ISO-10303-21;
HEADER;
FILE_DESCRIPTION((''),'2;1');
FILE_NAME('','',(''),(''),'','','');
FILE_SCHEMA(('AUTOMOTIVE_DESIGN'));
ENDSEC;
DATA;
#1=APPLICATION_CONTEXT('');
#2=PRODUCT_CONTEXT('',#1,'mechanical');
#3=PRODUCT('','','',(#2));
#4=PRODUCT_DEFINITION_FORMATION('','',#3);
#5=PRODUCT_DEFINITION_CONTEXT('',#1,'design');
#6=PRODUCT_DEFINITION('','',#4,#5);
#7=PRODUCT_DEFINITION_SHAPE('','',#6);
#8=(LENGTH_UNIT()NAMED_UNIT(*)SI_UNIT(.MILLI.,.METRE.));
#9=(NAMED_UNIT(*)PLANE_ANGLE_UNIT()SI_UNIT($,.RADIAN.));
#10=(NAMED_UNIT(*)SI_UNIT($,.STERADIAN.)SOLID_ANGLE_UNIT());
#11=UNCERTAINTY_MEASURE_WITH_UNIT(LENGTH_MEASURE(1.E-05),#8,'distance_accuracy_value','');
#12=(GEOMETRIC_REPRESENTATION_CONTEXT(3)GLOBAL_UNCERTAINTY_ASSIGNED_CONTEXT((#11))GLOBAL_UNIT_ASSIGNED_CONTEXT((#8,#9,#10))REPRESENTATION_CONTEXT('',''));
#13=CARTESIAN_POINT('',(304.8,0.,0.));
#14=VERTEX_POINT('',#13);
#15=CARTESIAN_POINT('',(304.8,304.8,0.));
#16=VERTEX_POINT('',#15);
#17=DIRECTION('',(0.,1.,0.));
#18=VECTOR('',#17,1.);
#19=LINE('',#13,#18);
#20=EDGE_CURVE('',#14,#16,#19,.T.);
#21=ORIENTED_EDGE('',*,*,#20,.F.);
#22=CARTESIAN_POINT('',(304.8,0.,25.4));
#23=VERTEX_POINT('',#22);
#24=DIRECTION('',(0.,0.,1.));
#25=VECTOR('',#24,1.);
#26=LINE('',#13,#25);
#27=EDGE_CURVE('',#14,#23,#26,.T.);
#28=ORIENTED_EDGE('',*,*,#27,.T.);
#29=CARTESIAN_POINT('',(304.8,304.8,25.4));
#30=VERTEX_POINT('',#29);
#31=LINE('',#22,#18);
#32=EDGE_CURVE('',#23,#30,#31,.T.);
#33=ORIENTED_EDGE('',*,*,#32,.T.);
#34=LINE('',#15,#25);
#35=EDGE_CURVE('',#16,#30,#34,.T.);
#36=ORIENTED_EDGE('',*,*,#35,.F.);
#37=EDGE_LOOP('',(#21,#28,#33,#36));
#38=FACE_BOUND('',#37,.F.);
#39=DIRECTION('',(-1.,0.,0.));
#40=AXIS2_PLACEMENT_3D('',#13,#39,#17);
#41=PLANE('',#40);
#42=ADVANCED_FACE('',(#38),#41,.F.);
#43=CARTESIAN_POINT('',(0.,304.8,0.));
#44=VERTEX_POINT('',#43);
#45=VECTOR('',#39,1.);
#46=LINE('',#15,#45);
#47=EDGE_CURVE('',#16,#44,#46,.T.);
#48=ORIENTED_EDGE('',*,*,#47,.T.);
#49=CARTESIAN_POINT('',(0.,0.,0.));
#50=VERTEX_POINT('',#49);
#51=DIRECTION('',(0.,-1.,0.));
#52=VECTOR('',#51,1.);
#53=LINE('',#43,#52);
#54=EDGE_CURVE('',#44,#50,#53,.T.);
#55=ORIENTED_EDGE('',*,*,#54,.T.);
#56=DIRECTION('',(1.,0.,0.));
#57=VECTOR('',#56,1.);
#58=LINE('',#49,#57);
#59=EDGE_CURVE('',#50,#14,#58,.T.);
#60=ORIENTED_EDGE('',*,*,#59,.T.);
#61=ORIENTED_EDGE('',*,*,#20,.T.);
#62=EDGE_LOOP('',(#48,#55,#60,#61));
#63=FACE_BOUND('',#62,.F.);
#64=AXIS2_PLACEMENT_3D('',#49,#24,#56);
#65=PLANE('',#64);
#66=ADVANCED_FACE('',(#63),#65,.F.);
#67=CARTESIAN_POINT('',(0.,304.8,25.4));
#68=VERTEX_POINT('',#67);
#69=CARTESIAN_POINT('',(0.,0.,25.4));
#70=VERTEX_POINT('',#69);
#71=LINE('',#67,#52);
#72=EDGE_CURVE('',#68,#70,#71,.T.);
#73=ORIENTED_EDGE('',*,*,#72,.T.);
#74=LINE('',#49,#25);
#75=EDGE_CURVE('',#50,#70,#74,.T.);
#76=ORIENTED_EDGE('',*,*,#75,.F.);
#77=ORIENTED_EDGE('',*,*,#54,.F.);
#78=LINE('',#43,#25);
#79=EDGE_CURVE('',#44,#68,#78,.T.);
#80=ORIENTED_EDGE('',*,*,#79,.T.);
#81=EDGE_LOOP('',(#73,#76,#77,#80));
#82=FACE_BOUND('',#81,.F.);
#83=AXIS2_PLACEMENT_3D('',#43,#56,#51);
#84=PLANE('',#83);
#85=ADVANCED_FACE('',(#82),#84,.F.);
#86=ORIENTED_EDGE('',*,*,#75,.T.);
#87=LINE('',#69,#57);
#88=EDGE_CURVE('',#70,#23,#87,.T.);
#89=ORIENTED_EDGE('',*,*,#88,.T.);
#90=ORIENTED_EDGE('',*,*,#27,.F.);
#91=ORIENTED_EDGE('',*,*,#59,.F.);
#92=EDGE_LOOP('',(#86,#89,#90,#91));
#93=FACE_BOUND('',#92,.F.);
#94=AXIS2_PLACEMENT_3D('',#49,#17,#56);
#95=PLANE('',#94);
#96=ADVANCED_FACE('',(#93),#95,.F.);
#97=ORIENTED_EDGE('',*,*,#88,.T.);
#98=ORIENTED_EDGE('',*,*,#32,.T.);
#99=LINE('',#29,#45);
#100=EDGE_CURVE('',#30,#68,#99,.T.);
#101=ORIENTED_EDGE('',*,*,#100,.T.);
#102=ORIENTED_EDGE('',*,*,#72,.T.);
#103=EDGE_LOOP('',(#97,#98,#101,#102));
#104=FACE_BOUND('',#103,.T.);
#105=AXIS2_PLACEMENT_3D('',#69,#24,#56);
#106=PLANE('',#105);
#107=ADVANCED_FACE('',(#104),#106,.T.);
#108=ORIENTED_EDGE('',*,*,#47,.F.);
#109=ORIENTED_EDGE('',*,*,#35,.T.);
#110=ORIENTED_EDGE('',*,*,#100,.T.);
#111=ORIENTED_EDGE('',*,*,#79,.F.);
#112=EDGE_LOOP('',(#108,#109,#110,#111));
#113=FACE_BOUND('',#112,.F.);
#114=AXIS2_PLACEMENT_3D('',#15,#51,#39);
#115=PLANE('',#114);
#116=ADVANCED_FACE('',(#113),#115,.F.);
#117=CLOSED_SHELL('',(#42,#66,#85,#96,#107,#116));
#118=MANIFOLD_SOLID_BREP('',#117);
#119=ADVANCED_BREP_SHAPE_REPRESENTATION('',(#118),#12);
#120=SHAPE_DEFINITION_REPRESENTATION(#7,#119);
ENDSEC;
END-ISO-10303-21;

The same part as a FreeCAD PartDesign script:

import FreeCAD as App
import Part
import Sketcher

V = App.Vector
Q = App.Units.Quantity


def add_polygon(sketch, points):
    """Adds a closed chain of lines whose ends are joined by coincident constraints."""
    first, n = sketch.GeometryCount, len(points)
    for a, b in zip(points, points[1:] + points[:1]):
        sketch.addGeometry(Part.LineSegment(App.Vector(*a, 0), App.Vector(*b, 0)), False)
    for i in range(n):
        sketch.addConstraint(Sketcher.Constraint("Coincident", first + i, 2, first + (i + 1) % n, 1))

doc = App.newDocument("Part")
body = doc.addObject("PartDesign::Body", "Body")

sketch1 = body.newObject("Sketcher::SketchObject", "Sketch")
sketch1.AttachmentSupport = (doc.getObject("XY_Plane"), [""])
sketch1.MapMode = "FlatFace"
add_polygon(sketch1, [(0, 304.8), (0, 0), (304.8, 0), (304.8, 304.8)])
sketch1.addConstraint([
    Sketcher.Constraint("Vertical", 0),
    Sketcher.Constraint("Horizontal", 1),
    Sketcher.Constraint("Vertical", 2),
    Sketcher.Constraint("Horizontal", 3),
    Sketcher.Constraint("Coincident", 0, 2, -1, 1),
    Sketcher.Constraint("Equal", 3, 0),
    Sketcher.Constraint("DistanceX", 1, 1, 1, 2, Q("12 in")),
])
pad1 = body.newObject("PartDesign::Pad", "Pad")
pad1.Profile = sketch1
pad1.Length = Q("1 in")

doc.recompute()
